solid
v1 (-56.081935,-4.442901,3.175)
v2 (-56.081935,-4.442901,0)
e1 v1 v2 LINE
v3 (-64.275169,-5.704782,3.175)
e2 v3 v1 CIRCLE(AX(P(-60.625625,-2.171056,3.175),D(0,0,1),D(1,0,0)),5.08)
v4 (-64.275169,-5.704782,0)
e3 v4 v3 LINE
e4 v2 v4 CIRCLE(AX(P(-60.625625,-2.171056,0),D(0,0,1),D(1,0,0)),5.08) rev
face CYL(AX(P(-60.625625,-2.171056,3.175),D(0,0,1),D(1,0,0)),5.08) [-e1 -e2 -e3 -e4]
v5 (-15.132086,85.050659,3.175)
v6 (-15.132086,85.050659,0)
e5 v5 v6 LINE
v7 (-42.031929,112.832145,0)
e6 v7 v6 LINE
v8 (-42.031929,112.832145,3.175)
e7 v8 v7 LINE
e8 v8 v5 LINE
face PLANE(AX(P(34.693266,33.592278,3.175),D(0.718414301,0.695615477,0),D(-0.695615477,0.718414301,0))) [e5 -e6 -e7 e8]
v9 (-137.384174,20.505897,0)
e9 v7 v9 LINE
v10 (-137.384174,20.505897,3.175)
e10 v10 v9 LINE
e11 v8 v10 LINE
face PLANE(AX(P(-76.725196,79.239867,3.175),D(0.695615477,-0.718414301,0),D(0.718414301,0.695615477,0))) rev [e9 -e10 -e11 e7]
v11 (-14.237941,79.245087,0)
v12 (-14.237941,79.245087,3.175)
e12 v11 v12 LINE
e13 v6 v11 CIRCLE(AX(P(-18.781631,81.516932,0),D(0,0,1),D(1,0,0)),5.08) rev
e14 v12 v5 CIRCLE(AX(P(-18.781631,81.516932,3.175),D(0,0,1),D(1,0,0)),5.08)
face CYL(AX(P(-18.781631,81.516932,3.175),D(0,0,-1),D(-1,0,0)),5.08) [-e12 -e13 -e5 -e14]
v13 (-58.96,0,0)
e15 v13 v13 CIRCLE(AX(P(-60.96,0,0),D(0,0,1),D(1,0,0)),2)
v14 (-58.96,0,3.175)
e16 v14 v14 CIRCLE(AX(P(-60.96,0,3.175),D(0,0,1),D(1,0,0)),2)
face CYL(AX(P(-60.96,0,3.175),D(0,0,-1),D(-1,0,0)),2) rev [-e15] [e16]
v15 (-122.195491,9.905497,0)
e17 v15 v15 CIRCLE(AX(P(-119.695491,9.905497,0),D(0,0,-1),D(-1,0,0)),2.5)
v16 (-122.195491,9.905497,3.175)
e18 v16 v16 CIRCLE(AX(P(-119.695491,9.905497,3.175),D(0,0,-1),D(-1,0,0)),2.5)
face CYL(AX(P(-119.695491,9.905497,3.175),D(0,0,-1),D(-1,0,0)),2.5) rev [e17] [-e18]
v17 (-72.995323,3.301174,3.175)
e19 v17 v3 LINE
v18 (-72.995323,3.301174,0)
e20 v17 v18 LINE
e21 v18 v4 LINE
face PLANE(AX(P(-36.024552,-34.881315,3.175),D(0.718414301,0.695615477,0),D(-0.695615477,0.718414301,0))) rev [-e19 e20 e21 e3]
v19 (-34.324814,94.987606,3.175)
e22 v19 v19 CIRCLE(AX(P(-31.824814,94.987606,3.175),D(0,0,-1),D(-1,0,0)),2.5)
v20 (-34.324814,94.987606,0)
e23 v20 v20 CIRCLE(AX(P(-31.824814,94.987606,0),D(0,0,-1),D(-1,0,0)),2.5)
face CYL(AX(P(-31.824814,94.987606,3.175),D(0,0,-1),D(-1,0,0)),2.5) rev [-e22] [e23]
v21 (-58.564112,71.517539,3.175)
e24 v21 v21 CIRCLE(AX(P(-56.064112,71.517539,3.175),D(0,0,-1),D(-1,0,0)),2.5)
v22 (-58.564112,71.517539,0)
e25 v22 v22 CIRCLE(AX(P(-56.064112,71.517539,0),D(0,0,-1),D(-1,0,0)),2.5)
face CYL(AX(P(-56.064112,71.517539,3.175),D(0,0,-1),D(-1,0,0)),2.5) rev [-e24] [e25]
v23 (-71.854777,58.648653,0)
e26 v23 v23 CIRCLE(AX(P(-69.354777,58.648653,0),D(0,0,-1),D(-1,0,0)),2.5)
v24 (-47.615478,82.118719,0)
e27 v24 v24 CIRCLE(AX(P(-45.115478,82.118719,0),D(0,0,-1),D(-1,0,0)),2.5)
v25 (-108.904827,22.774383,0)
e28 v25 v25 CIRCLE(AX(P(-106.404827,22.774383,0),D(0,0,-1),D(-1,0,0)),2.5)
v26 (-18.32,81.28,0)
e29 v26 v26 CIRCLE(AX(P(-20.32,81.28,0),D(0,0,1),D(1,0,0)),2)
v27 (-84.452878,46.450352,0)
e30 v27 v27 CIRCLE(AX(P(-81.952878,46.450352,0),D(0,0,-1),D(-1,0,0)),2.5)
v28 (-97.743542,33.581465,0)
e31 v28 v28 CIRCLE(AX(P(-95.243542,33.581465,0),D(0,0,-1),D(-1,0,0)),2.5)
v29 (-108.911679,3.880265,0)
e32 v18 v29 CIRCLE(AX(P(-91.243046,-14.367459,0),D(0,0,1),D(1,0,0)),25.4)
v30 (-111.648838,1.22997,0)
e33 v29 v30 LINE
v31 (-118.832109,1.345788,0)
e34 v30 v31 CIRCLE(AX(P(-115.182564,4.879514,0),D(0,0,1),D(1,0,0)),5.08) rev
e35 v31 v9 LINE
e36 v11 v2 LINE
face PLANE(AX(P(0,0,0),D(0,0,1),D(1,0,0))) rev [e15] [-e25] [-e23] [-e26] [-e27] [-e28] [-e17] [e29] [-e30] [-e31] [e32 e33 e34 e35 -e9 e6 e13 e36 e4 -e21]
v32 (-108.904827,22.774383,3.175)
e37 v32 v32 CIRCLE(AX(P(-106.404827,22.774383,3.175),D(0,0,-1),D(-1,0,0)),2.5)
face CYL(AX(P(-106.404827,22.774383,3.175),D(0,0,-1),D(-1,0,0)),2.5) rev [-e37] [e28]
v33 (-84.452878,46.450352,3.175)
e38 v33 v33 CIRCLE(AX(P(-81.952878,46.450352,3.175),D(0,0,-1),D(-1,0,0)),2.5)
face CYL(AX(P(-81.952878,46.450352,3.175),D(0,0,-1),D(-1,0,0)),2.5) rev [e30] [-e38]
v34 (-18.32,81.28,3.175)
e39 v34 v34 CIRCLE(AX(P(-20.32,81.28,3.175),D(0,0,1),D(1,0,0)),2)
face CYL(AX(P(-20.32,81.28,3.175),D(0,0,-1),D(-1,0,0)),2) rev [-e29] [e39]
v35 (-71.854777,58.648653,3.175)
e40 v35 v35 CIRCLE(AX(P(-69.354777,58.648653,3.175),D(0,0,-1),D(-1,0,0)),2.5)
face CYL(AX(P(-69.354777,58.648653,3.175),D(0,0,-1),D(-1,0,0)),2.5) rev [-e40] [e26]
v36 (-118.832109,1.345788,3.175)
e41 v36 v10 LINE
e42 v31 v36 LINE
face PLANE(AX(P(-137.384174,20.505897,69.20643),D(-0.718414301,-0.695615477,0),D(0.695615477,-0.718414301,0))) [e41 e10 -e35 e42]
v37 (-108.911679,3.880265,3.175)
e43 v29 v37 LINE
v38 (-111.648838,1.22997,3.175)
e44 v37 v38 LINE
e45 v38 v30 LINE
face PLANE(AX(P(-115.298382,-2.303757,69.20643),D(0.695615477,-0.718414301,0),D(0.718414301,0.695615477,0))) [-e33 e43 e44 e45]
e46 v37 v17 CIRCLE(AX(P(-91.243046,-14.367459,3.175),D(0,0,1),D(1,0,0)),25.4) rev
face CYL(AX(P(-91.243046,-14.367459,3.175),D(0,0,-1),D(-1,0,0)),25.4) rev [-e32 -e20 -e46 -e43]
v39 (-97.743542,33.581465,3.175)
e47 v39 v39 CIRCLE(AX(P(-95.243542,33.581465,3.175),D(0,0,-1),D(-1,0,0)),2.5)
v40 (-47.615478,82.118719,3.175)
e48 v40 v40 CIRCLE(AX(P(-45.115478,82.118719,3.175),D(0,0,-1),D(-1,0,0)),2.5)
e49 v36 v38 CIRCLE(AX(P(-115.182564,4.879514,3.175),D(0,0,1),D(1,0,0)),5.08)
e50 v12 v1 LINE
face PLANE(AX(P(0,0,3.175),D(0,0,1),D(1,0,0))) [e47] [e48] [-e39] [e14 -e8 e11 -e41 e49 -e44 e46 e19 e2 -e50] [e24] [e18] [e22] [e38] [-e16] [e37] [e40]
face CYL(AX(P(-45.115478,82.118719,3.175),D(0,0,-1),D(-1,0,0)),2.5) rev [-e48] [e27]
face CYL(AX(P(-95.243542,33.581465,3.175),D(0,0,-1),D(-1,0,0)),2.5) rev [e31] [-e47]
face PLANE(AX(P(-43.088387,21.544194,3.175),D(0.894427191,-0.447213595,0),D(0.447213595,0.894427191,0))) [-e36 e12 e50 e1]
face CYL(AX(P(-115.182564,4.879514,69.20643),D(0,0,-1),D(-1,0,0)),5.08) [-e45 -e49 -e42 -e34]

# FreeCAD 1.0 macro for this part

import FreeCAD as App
import Part
import Sketcher
Q = App.Units.Quantity


def edges_at(feature, points):
    """Names of the edges that pass closest to the given points."""
    edges = feature.Shape.Edges
    near = lambda p: min(range(len(edges)), key=lambda i: edges[i].distToShape(Part.Vertex(*p))[0])
    return sorted({f"Edge{near(p) + 1}" for p in points})


def add_polygon(sketch, points):
    """Adds a closed chain of lines whose ends are joined by coincident constraints."""
    first, n = sketch.GeometryCount, len(points)
    for a, b in zip(points, points[1:] + points[:1]):
        sketch.addGeometry(Part.LineSegment(App.Vector(*a, 0), App.Vector(*b, 0)), False)
    for i in range(n):
        sketch.addConstraint(Sketcher.Constraint("Coincident", first + i, 2, first + (i + 1) % n, 1))

doc = App.newDocument("Part")
body = doc.addObject("PartDesign::Body", "Body")

sketch1 = body.newObject("Sketcher::SketchObject", "Sketch")
sketch1.AttachmentSupport = (doc.getObject("XY_Plane"), [""])
sketch1.MapMode = "FlatFace"
add_polygon(sketch1, [(-59.288124, -10.855279), (-12.628154, 82.46466), (-23.460387, 93.65192), (-42.031929, 112.832145), (-112.749747, 44.358552)])
sketch1.addGeometry(Part.Circle(App.Vector(-60.96, 0, 0), App.Vector(0, 0, 1), 2), False)
sketch1.addGeometry(Part.Circle(App.Vector(-20.32, 81.28, 0), App.Vector(0, 0, 1), 2), False)
sketch1.addConstraint(Sketcher.Constraint("Equal", 5, 6))
sketch1.addConstraint(Sketcher.Constraint("PointOnObject", 5, 3, -1))
sketch1.addConstraint(Sketcher.Constraint("Parallel", 1, 2))
sketch1.addConstraint(Sketcher.Constraint("Perpendicular", 2, 3))
sketch1.addConstraint(Sketcher.Constraint("Perpendicular", 3, 4))
sketch1.addConstraint(Sketcher.Constraint("DistanceX", 5, 3, -1, 1, Q("2.4 in")))
sketch1.addConstraint(Sketcher.Constraint("DistanceX", 6, 3, -1, 1, Q("0.8 in")))
sketch1.addConstraint(Sketcher.Constraint("DistanceY", -1, 1, 6, 3, Q("3.2 in")))
sketch1.addConstraint(Sketcher.Constraint("Diameter", 5, 4.0))
sketch1.addConstraint(Sketcher.Constraint("Distance", 2, 26.698))
sketch1.addConstraint(Sketcher.Constraint("DistanceY", 4, 2, 1, 2, 104.507199))
sketch1.addConstraint(Sketcher.Constraint("Distance", 4, 76.855138))
sketch1.addConstraint(Sketcher.Constraint("DistanceY", -1, 1, 0, 2, 82.46466))
sketch1.addConstraint(Sketcher.Constraint("DistanceY", -1, 1, 1, 2, 93.65192))
sketch1.addConstraint(Sketcher.Constraint("DistanceX", 2, 2, -1, 1, 42.031929))
sketch1.addConstraint(Sketcher.Constraint("DistanceY", -1, 1, 3, 2, 44.358552))
pad1 = body.newObject("PartDesign::Pad", "Pad")
pad1.Profile = sketch1
pad1.Length = Q("0.125 in")

sketch2 = body.newObject("Sketcher::SketchObject", "Sketch001")
sketch2.AttachmentSupport = (doc.getObject("XY_Plane"), [""])
sketch2.MapMode = "FlatFace"
sketch2.addGeometry(Part.Circle(App.Vector(-95.243542, 33.581465, 0), App.Vector(0, 0, 1), 2.5), False)
sketch2.addGeometry(Part.Circle(App.Vector(-31.824814, 94.987606, 0), App.Vector(0, 0, 1), 2.5), False)
sketch2.addGeometry(Part.Circle(App.Vector(-81.952878, 46.450352, 0), App.Vector(0, 0, 1), 2.5), False)
sketch2.addGeometry(Part.Circle(App.Vector(-45.115478, 82.118719, 0), App.Vector(0, 0, 1), 2.5), False)
sketch2.addGeometry(Part.Circle(App.Vector(-56.064112, 71.517539, 0), App.Vector(0, 0, 1), 2.5), False)
sketch2.addGeometry(Part.Circle(App.Vector(-69.354777, 58.648653, 0), App.Vector(0, 0, 1), 2.5), False)
sketch2.addConstraint(Sketcher.Constraint("Equal", 0, 1))
sketch2.addConstraint(Sketcher.Constraint("Equal", 1, 2))
sketch2.addConstraint(Sketcher.Constraint("Equal", 2, 3))
sketch2.addConstraint(Sketcher.Constraint("Equal", 3, 4))
sketch2.addConstraint(Sketcher.Constraint("Equal", 4, 5))
sketch2.addConstraint(Sketcher.Constraint("Diameter", 0, 5.0))
sketch2.addConstraint(Sketcher.Constraint("DistanceX", 3, 3, -1, 1, Q("1.7761999 in")))
sketch2.addConstraint(Sketcher.Constraint("DistanceX", 2, 3, 3, 3, 36.8374))
sketch2.addConstraint(Sketcher.Constraint("DistanceX", 4, 3, 1, 3, 24.239299))
sketch2.addConstraint(Sketcher.Constraint("DistanceX", 2, 3, 5, 3, 12.598101))
sketch2.addConstraint(Sketcher.Constraint("DistanceY", 2, 3, 5, 3, 12.198301))
sketch2.addConstraint(Sketcher.Constraint("DistanceY", -1, 1, 2, 3, 46.450352))
sketch2.addConstraint(Sketcher.Constraint("DistanceY", -1, 1, 3, 3, 82.118719))
sketch2.addConstraint(Sketcher.Constraint("DistanceY", -1, 1, 4, 3, 71.517539))
sketch2.addConstraint(Sketcher.Constraint("DistanceX", 0, 3, 1, 3, 63.418729))
sketch2.addConstraint(Sketcher.Constraint("DistanceY", 0, 3, 1, 3, 61.40614))
sketch2.addConstraint(Sketcher.Constraint("DistanceX", 0, 3, -1, 1, 95.243542))
sketch2.addConstraint(Sketcher.Constraint("DistanceY", -1, 1, 0, 3, 33.581465))
pocket1 = body.newObject("PartDesign::Pocket", "Pocket")
pocket1.Profile = sketch2
pocket1.Type = "ThroughAll"
pocket1.Reversed = True

sketch3 = body.newObject("Sketcher::SketchObject", "Sketch002")
sketch3.AttachmentSupport = (doc.getObject("XY_Plane"), [""])
sketch3.MapMode = "FlatFace"
add_polygon(sketch3, [(-137.384174, 20.505897), (-112.749747, 44.358552), (-90.663956, 21.548898), (-115.298382, -2.303757)])
sketch3.addConstraint(Sketcher.Constraint("Perpendicular", 0, 1))
sketch3.addConstraint(Sketcher.Constraint("Perpendicular", 1, 2))
sketch3.addConstraint(Sketcher.Constraint("Perpendicular", 2, 3))
sketch3.addConstraint(Sketcher.Constraint("Distance", 0, Q("1.35 in")))
sketch3.addConstraint(Sketcher.Constraint("Distance", 1, Q("1.25 in")))
sketch3.addConstraint(Sketcher.Constraint("DistanceY", 3, 2, 1, 2, 1.043001))
sketch3.addConstraint(Sketcher.Constraint("DistanceY", -1, 1, 0, 2, 44.358552))
sketch3.addConstraint(Sketcher.Constraint("DistanceX", 0, 2, -1, 1, 112.749747))
pad2 = body.newObject("PartDesign::Pad", "Pad001")
pad2.Profile = sketch3
pad2.Length = Q("0.125 in")

sketch4 = body.newObject("Sketcher::SketchObject", "Sketch003")
sketch4.AttachmentSupport = (doc.getObject("XY_Plane"), [""])
sketch4.MapMode = "FlatFace"
sketch4.addGeometry(Part.Circle(App.Vector(-106.404827, 22.774383, 0), App.Vector(0, 0, 1), 2.5), False)
sketch4.addGeometry(Part.Circle(App.Vector(-119.695491, 9.905497, 0), App.Vector(0, 0, 1), 2.5), False)
sketch4.addConstraint(Sketcher.Constraint("Equal", 0, 1))
sketch4.addConstraint(Sketcher.Constraint("Diameter", 0, 5.0))
sketch4.addConstraint(Sketcher.Constraint("DistanceX", 1, 3, -1, 1, 119.695491))
sketch4.addConstraint(Sketcher.Constraint("DistanceX", 0, 3, -1, 1, 106.404827))
sketch4.addConstraint(Sketcher.Constraint("DistanceY", -1, 1, 0, 3, 22.774383))
sketch4.addConstraint(Sketcher.Constraint("DistanceY", -1, 1, 1, 3, 9.905497))
pocket2 = body.newObject("PartDesign::Pocket", "Pocket001")
pocket2.Profile = sketch4
pocket2.Type = "ThroughAll"
pocket2.Reversed = True
doc.recompute()

fillet = body.newObject("PartDesign::Fillet", "Fillet")
fillet.Base = (pocket2, edges_at(pocket2, [(-59.288, -10.855, 1.587), (-12.628, 82.465, 1.587)]))
fillet.Radius = Q("0.2 in")
doc.recompute()

fillet2 = body.newObject("PartDesign::Fillet", "Fillet001")
fillet2.Base = (fillet, edges_at(fillet, [(-90.664, 21.549, 1.587)]))
fillet2.Radius = Q("1 in")
doc.recompute()

fillet3 = body.newObject("PartDesign::Fillet", "Fillet002")
fillet3.Base = (fillet2, edges_at(fillet2, [(-115.298, -2.304, 1.587)]))
fillet3.Radius = Q("0.2 in")

doc.recompute()
